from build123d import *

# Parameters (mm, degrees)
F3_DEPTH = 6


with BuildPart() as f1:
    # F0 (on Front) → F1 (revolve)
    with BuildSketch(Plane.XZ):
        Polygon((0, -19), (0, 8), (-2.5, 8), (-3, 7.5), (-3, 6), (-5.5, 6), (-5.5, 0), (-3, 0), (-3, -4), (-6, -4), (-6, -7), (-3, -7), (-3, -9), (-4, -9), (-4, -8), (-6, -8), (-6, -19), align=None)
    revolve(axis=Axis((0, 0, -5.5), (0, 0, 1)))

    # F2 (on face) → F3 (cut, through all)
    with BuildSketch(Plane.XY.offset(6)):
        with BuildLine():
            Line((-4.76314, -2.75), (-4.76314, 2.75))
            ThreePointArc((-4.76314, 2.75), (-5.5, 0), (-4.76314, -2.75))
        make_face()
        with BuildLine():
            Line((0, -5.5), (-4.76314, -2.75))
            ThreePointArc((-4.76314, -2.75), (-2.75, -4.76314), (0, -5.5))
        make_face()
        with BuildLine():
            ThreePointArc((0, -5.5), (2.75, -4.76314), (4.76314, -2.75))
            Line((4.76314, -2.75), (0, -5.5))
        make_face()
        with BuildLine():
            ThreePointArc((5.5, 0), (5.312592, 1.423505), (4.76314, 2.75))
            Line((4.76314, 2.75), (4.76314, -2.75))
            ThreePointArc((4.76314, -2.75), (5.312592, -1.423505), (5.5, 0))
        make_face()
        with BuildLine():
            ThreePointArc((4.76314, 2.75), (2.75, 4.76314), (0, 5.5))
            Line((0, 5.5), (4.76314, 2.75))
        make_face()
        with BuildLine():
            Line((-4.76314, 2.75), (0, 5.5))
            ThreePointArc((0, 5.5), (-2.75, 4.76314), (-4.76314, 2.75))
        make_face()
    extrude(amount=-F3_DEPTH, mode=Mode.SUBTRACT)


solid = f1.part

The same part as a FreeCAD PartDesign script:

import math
import FreeCAD as App
import Part
import Sketcher
Q = App.Units.Quantity

doc = App.newDocument("Part")
body = doc.addObject("PartDesign::Body", "Body")

# Sketch on XZ plane
sketch1 = body.newObject("Sketcher::SketchObject", "Sketch")
sketch1.AttachmentSupport = (doc.getObject("XZ_Plane"), [""])
sketch1.MapMode = "FlatFace"
sketch1.addGeometry([
    Part.LineSegment(App.Vector(0, -19, 0), App.Vector(0, 8, 0)),  # 0
    Part.LineSegment(App.Vector(0, 8, 0), App.Vector(-2.5, 8, 0)),  # 1
    Part.LineSegment(App.Vector(-2.5, 8, 0), App.Vector(-3, 7.5, 0)),  # 2
    Part.LineSegment(App.Vector(-3, 7.5, 0), App.Vector(-3, 6, 0)),  # 3
    Part.LineSegment(App.Vector(-3, 6, 0), App.Vector(-5.5, 6, 0)),  # 4
    Part.LineSegment(App.Vector(-5.5, 6, 0), App.Vector(-5.5, 0, 0)),  # 5
    Part.LineSegment(App.Vector(-5.5, 0, 0), App.Vector(-3, 0, 0)),  # 6
    Part.LineSegment(App.Vector(-3, 0, 0), App.Vector(-3, -4, 0)),  # 7
    Part.LineSegment(App.Vector(-3, -4, 0), App.Vector(-6, -4, 0)),  # 8
    Part.LineSegment(App.Vector(-6, -4, 0), App.Vector(-6, -7, 0)),  # 9
    Part.LineSegment(App.Vector(-6, -7, 0), App.Vector(-3, -7, 0)),  # 10
    Part.LineSegment(App.Vector(-3, -7, 0), App.Vector(-3, -9, 0)),  # 11
    Part.LineSegment(App.Vector(-3, -9, 0), App.Vector(-4, -9, 0)),  # 12
    Part.LineSegment(App.Vector(-4, -9, 0), App.Vector(-4, -8, 0)),  # 13
    Part.LineSegment(App.Vector(-4, -8, 0), App.Vector(-6, -8, 0)),  # 14
    Part.LineSegment(App.Vector(-6, -8, 0), App.Vector(-6, -19, 0)),  # 15
    Part.LineSegment(App.Vector(-6, -19, 0), App.Vector(0, -19, 0)),  # 16
], False)
sketch1.addConstraint([
    Sketcher.Constraint("Coincident", 0, 2, 1, 1),
    Sketcher.Constraint("Coincident", 1, 2, 2, 1),
    Sketcher.Constraint("Coincident", 2, 2, 3, 1),
    Sketcher.Constraint("Coincident", 3, 2, 4, 1),
    Sketcher.Constraint("Coincident", 4, 2, 5, 1),
    Sketcher.Constraint("Coincident", 5, 2, 6, 1),
    Sketcher.Constraint("Coincident", 6, 2, 7, 1),
    Sketcher.Constraint("Coincident", 7, 2, 8, 1),
    Sketcher.Constraint("Coincident", 8, 2, 9, 1),
    Sketcher.Constraint("Coincident", 9, 2, 10, 1),
    Sketcher.Constraint("Coincident", 10, 2, 11, 1),
    Sketcher.Constraint("Coincident", 11, 2, 12, 1),
    Sketcher.Constraint("Coincident", 12, 2, 13, 1),
    Sketcher.Constraint("Coincident", 13, 2, 14, 1),
    Sketcher.Constraint("Coincident", 14, 2, 15, 1),
    Sketcher.Constraint("Coincident", 15, 2, 16, 1),
    Sketcher.Constraint("Coincident", 16, 2, 0, 1),
    Sketcher.Constraint("Vertical", 0),
    Sketcher.Constraint("Horizontal", 1),
    Sketcher.Constraint("Vertical", 3),
    Sketcher.Constraint("Horizontal", 4),
    Sketcher.Constraint("Vertical", 5),
    Sketcher.Constraint("Horizontal", 6),
    Sketcher.Constraint("Vertical", 7),
    Sketcher.Constraint("Horizontal", 8),
    Sketcher.Constraint("Vertical", 9),
    Sketcher.Constraint("Horizontal", 10),
    Sketcher.Constraint("Vertical", 11),
    Sketcher.Constraint("Horizontal", 12),
    Sketcher.Constraint("Vertical", 13),
    Sketcher.Constraint("Horizontal", 14),
    Sketcher.Constraint("Vertical", 15),
    Sketcher.Constraint("Horizontal", 16),
    Sketcher.Constraint("PointOnObject", 0, 2, -2),
    Sketcher.Constraint("PointOnObject", 5, 2, -1),
    Sketcher.Constraint("Vertical", 3, 2, 6, 2),
    Sketcher.Constraint("Vertical", 7, 2, 10, 2),
    Sketcher.Constraint("Vertical", 9, 2, 14, 2),
    Sketcher.Constraint("Equal", 1, 4),
    Sketcher.Constraint("Equal", 16, 5),
    Sketcher.Constraint("Equal", 10, 9),
    Sketcher.Constraint("Equal", 14, 11),
    Sketcher.Constraint("Equal", 12, 13),
    Sketcher.Constraint("DistanceX", 8, 2, 8, 1, Q("3 mm")),
    Sketcher.Constraint("DistanceX", 12, 2, 12, 1, Q("1 mm")),
    Sketcher.Constraint("DistanceX", 16, 1, 16, 2, Q("6 mm")),
    Sketcher.Constraint("DistanceY", 0, 1, 0, 2, Q("27 mm")),
    Sketcher.Constraint("DistanceY", 7, 2, 7, 1, Q("4 mm")),
    Sketcher.Constraint("DistanceY", 15, 2, 15, 1, Q("11 mm")),
    Sketcher.Constraint("Angle", 2, Q("-135 deg")),
    Sketcher.Constraint("DistanceX", 1, 2, 1, 1, Q("2.5 mm")),
])
revolution = body.newObject("PartDesign::Revolution", "Revolution")
revolution.Profile = sketch1
revolution.ReferenceAxis = (sketch1, ["V_Axis"])
revolution.Angle = 360

# Sketch on XY plane
sketch2 = body.newObject("Sketcher::SketchObject", "Sketch001")
sketch2.AttachmentSupport = (doc.getObject("XY_Plane"), [""])
sketch2.MapMode = "FlatFace"
sketch2.AttachmentOffset = App.Placement(App.Vector(0, 0, 6), App.Rotation())
sketch2.addGeometry([
    Part.LineSegment(App.Vector(-4.8, -2.8, 0), App.Vector(-4.8, 2.8, 0)),  # 0
    Part.ArcOfCircle(Part.Circle(App.Vector(0, 0, 0), App.Vector(0, 0, 1), 5.5), math.radians(150), math.radians(210)),  # 1
    Part.LineSegment(App.Vector(0, -5.5, 0), App.Vector(-4.8, -2.8, 0)),  # 2
    Part.ArcOfCircle(Part.Circle(App.Vector(0, 0, 0), App.Vector(0, 0, 1), 5.5), math.radians(-150), math.radians(-90)),  # 3
    Part.ArcOfCircle(Part.Circle(App.Vector(0, 0, 0), App.Vector(0, 0, 1), 5.5), math.radians(-90), math.radians(-30)),  # 4
    Part.LineSegment(App.Vector(4.8, -2.8, 0), App.Vector(0, -5.5, 0)),  # 5
    Part.ArcOfCircle(Part.Circle(App.Vector(0, 0, 0), App.Vector(0, 0, 1), 5.5), math.radians(0), math.radians(30)),  # 6
    Part.LineSegment(App.Vector(4.8, 2.8, 0), App.Vector(4.8, -2.8, 0)),  # 7
    Part.ArcOfCircle(Part.Circle(App.Vector(0, 0, 0), App.Vector(0, 0, 1), 5.5), math.radians(-30), math.radians(0)),  # 8
    Part.ArcOfCircle(Part.Circle(App.Vector(0, 0, 0), App.Vector(0, 0, 1), 5.5), math.radians(30), math.radians(90)),  # 9
    Part.LineSegment(App.Vector(0, 5.5, 0), App.Vector(4.8, 2.8, 0)),  # 10
    Part.LineSegment(App.Vector(-4.8, 2.8, 0), App.Vector(0, 5.5, 0)),  # 11
    Part.ArcOfCircle(Part.Circle(App.Vector(0, 0, 0), App.Vector(0, 0, 1), 5.5), math.radians(90), math.radians(150)),  # 12
], False)
sketch2.addConstraint([
    Sketcher.Constraint("Coincident", 0, 1, 1, 2),
    Sketcher.Constraint("Coincident", 1, 1, 0, 2),
    Sketcher.Constraint("Coincident", 2, 1, 3, 2),
    Sketcher.Constraint("Coincident", 3, 1, 2, 2),
    Sketcher.Constraint("Coincident", 4, 1, 5, 2),
    Sketcher.Constraint("Coincident", 5, 1, 4, 2),
    Sketcher.Constraint("Coincident", 6, 2, 7, 1),
    Sketcher.Constraint("Coincident", 7, 2, 8, 1),
    Sketcher.Constraint("Tangent", 8, 2, 6, 1),
    Sketcher.Constraint("Coincident", 9, 1, 10, 2),
    Sketcher.Constraint("Coincident", 10, 1, 9, 2),
    Sketcher.Constraint("Coincident", 11, 1, 12, 2),
    Sketcher.Constraint("Coincident", 12, 1, 11, 2),
    Sketcher.Constraint("Vertical", 0),
    Sketcher.Constraint("Vertical", 7),
    Sketcher.Constraint("Coincident", 1, 3, -1, 1),
    Sketcher.Constraint("Coincident", 3, 3, -1, 1),
    Sketcher.Constraint("Coincident", 4, 3, -1, 1),
    Sketcher.Constraint("Coincident", 6, 3, -1, 1),
    Sketcher.Constraint("Coincident", 9, 3, -1, 1),
    Sketcher.Constraint("Coincident", 12, 3, -1, 1),
    Sketcher.Constraint("Coincident", 3, 1, 0, 1),
    Sketcher.Constraint("Coincident", 4, 1, 2, 1),
    Sketcher.Constraint("Coincident", 7, 2, 5, 1),
    Sketcher.Constraint("Coincident", 9, 1, 6, 2),
    Sketcher.Constraint("Coincident", 11, 1, 1, 1),
    Sketcher.Constraint("Coincident", 12, 1, 10, 1),
    Sketcher.Constraint("PointOnObject", 2, 1, -2),
    Sketcher.Constraint("PointOnObject", 8, 2, -1),
    Sketcher.Constraint("PointOnObject", 10, 1, -2),
    Sketcher.Constraint("Parallel", 2, 10),
    Sketcher.Constraint("Radius", 1, Q("5.500002 mm")),
    Sketcher.Constraint("Angle", 2, Q("150.000001 deg")),
])
pocket1 = body.newObject("PartDesign::Pocket", "Pocket")
pocket1.Profile = sketch2
pocket1.Length = 6

doc.recompute()
